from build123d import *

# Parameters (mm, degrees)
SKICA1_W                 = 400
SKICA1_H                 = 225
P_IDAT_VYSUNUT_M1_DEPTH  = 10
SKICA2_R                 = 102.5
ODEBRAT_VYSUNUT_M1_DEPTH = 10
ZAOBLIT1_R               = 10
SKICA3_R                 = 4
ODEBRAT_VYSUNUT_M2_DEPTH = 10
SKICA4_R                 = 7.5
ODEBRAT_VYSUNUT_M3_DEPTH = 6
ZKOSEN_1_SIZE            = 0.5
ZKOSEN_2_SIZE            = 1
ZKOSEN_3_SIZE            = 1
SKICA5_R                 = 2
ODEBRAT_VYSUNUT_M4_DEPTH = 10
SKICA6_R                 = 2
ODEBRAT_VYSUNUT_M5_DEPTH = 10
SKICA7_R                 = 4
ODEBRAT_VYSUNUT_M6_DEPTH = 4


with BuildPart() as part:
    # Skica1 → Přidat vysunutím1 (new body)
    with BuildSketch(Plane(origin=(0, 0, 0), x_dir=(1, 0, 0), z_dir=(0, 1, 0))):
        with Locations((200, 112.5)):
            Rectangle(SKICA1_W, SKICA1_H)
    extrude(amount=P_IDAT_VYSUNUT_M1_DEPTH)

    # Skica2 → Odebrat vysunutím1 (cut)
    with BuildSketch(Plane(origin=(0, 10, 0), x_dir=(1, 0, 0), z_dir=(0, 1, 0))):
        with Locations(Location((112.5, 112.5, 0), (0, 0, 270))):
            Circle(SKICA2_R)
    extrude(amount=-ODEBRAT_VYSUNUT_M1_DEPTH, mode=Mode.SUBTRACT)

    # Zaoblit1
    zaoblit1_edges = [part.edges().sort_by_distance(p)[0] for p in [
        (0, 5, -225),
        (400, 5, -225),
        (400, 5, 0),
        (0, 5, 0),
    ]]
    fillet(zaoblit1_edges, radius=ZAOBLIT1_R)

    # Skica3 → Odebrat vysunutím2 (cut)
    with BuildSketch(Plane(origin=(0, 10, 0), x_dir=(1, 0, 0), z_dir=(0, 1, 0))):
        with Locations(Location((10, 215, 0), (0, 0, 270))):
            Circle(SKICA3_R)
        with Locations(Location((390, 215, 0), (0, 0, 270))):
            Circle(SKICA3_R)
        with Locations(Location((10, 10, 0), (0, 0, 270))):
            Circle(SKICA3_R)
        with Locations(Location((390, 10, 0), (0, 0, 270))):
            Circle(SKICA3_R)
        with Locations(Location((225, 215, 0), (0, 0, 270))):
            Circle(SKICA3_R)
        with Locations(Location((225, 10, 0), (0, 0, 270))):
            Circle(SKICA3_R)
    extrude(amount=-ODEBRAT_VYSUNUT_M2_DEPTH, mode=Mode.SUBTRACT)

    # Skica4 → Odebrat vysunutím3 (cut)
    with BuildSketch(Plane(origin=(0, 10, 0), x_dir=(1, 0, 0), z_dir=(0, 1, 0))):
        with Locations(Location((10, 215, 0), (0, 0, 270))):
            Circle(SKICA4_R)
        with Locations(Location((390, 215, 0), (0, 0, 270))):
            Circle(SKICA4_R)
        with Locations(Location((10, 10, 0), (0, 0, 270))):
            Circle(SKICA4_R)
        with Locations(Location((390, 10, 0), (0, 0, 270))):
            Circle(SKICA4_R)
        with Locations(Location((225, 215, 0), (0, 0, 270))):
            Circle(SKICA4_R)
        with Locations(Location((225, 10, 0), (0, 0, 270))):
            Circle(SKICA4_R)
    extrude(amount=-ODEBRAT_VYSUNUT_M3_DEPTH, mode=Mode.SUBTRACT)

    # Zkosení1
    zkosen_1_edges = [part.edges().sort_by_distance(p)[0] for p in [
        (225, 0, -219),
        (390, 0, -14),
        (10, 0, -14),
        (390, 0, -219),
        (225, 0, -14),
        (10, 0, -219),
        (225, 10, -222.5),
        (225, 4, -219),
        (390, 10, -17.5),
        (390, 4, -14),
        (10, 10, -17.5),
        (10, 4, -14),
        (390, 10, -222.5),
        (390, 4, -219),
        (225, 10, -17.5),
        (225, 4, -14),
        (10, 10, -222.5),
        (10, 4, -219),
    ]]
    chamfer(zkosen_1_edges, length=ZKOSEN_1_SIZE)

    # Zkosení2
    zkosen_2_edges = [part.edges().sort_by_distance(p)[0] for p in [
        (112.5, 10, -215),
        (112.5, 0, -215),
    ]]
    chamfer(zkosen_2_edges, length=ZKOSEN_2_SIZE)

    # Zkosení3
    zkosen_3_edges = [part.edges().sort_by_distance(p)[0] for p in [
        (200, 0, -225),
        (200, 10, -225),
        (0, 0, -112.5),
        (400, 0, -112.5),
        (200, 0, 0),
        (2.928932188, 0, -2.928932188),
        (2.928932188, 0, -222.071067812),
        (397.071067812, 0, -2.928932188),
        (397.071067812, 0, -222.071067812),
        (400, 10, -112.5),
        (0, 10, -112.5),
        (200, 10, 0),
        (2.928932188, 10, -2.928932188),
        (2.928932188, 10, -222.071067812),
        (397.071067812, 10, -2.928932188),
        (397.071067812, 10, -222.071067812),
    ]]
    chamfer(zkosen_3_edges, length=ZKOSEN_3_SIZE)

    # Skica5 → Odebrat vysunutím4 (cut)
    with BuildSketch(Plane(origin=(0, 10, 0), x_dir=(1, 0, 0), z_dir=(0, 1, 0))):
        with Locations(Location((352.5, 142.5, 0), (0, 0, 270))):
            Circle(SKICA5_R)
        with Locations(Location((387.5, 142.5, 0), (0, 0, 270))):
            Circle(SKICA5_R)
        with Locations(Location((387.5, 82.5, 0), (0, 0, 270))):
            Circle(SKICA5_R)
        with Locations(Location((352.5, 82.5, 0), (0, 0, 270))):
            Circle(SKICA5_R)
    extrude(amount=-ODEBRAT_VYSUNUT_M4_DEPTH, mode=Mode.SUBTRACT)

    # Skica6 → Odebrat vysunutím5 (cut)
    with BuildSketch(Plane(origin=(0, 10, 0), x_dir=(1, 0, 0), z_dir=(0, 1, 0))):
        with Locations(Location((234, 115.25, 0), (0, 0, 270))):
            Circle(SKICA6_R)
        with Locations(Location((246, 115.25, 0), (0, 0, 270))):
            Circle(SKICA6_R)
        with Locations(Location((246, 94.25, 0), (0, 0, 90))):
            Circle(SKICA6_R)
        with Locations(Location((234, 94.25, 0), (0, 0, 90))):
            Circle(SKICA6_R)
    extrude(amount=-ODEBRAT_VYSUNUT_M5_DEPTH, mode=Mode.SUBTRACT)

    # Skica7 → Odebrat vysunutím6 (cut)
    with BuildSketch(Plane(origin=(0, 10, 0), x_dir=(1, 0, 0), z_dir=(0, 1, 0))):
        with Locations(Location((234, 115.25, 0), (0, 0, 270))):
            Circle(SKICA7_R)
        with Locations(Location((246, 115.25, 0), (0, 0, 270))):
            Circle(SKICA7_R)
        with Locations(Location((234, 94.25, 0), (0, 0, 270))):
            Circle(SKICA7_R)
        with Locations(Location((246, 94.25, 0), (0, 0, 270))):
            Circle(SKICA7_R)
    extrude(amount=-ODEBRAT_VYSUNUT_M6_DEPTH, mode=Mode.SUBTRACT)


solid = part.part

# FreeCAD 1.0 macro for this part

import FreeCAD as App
import Part
import Sketcher
from FreeCAD import Vector


def edges_at(feature, points):
    """Names of the edges that pass closest to the given points."""
    edges = feature.Shape.Edges
    near = lambda p: min(range(len(edges)), key=lambda i: edges[i].distToShape(Part.Vertex(*p))[0])
    return sorted({f"Edge{near(p) + 1}" for p in points})

doc = App.newDocument("Part")
body = doc.addObject("PartDesign::Body", "Body")

# Sketch on XZ plane
sketch1 = body.newObject("Sketcher::SketchObject", "Sketch")
sketch1.AttachmentSupport = (doc.getObject("XZ_Plane"), [""])
sketch1.MapMode = "FlatFace"
sketch1.addGeometry([
    Part.LineSegment(Vector(0, -225, 0), Vector(0, 0, 0)),
    Part.LineSegment(Vector(0, 0, 0), Vector(400, 0, 0)),
    Part.LineSegment(Vector(400, 0, 0), Vector(400, -225, 0)),
    Part.LineSegment(Vector(400, -225, 0), Vector(0, -225, 0)),
], False)
sketch1.addConstraint([
    Sketcher.Constraint("Coincident", 0, 2, 1, 1),
    Sketcher.Constraint("Coincident", 1, 2, 2, 1),
    Sketcher.Constraint("Coincident", 2, 2, 3, 1),
    Sketcher.Constraint("Coincident", 3, 2, 0, 1),
    Sketcher.Constraint("Vertical", 0),
    Sketcher.Constraint("Horizontal", 1),
    Sketcher.Constraint("Vertical", 2),
    Sketcher.Constraint("Horizontal", 3),
    Sketcher.Constraint("Coincident", 0, 2, -1, 1),
    Sketcher.Constraint("DistanceX", 1, 1, 1, 2, 400.0),
    Sketcher.Constraint("DistanceY", 0, 1, 0, 2, 225.0),
])
pad1 = body.newObject("PartDesign::Pad", "Pad")
pad1.Profile = sketch1
pad1.Length = 10
pad1.Reversed = True

# Sketch on XZ plane
sketch2 = body.newObject("Sketcher::SketchObject", "Sketch001")
sketch2.AttachmentSupport = (doc.getObject("XZ_Plane"), [""])
sketch2.MapMode = "FlatFace"
sketch2.AttachmentOffset = App.Placement(Vector(0, 0, -10), App.Rotation())
sketch2.addGeometry(Part.Circle(Vector(112.5, -112.5, 0), Vector(0, 0, 1), 102.5), False)
sketch2.addConstraint([
    Sketcher.Constraint("Diameter", 0, 205.0),
    Sketcher.Constraint("DistanceX", -1, 1, 0, 3, 112.5),
    Sketcher.Constraint("DistanceY", 0, 3, -1, 1, 112.5),
])
pocket1 = body.newObject("PartDesign::Pocket", "Pocket")
pocket1.Profile = sketch2
pocket1.Length = 10
pocket1.Reversed = True
doc.recompute()

fillet = body.newObject("PartDesign::Fillet", "Fillet")
fillet.Base = (pocket1, edges_at(pocket1, [
    (0, 5, -225),
    (400, 5, -225),
    (400, 5, 0),
    (0, 5, 0),
]))
fillet.Radius = 10

# Sketch on XZ plane
sketch3 = body.newObject("Sketcher::SketchObject", "Sketch002")
sketch3.AttachmentSupport = (doc.getObject("XZ_Plane"), [""])
sketch3.MapMode = "FlatFace"
sketch3.AttachmentOffset = App.Placement(Vector(0, 0, -10), App.Rotation())
sketch3.addGeometry([
    Part.Circle(Vector(10, -215, 0), Vector(0, 0, 1), 4),  # 0
    Part.Circle(Vector(390, -215, 0), Vector(0, 0, 1), 4),  # 1
    Part.Circle(Vector(10, -10, 0), Vector(0, 0, 1), 4),  # 2
    Part.Circle(Vector(390, -10, 0), Vector(0, 0, 1), 4),  # 3
    Part.Circle(Vector(225, -215, 0), Vector(0, 0, 1), 4),  # 4
    Part.Circle(Vector(225, -10, 0), Vector(0, 0, 1), 4),  # 5
], False)
sketch3.addConstraint([
    Sketcher.Constraint("Equal", 0, 1),
    Sketcher.Constraint("Equal", 1, 2),
    Sketcher.Constraint("Equal", 2, 3),
    Sketcher.Constraint("Equal", 3, 4),
    Sketcher.Constraint("Equal", 4, 5),
    Sketcher.Constraint("Horizontal", 0, 3, 1, 3),
    Sketcher.Constraint("Horizontal", 2, 3, 3, 3),
    Sketcher.Constraint("Horizontal", 1, 3, 4, 3),
    Sketcher.Constraint("Horizontal", 3, 3, 5, 3),
    Sketcher.Constraint("Vertical", 0, 3, 2, 3),
    Sketcher.Constraint("Vertical", 1, 3, 3, 3),
    Sketcher.Constraint("Vertical", 4, 3, 5, 3),
    Sketcher.Constraint("Diameter", 0, 8.0),
    Sketcher.Constraint("DistanceX", -1, 1, 0, 3, 10.0),
    Sketcher.Constraint("DistanceY", 0, 3, -1, 1, 215.0),
    Sketcher.Constraint("DistanceX", -1, 1, 1, 3, 390.0),
    Sketcher.Constraint("DistanceY", 2, 3, -1, 1, 10.0),
    Sketcher.Constraint("DistanceX", -1, 1, 4, 3, 225.0),
])
pocket2 = body.newObject("PartDesign::Pocket", "Pocket001")
pocket2.Profile = sketch3
pocket2.Length = 10
pocket2.Reversed = True

# Sketch on XZ plane
sketch4 = body.newObject("Sketcher::SketchObject", "Sketch003")
sketch4.AttachmentSupport = (doc.getObject("XZ_Plane"), [""])
sketch4.MapMode = "FlatFace"
sketch4.AttachmentOffset = App.Placement(Vector(0, 0, -10), App.Rotation())
sketch4.addGeometry([
    Part.Circle(Vector(10, -215, 0), Vector(0, 0, 1), 7.5),  # 0
    Part.Circle(Vector(390, -215, 0), Vector(0, 0, 1), 7.5),  # 1
    Part.Circle(Vector(10, -10, 0), Vector(0, 0, 1), 7.5),  # 2
    Part.Circle(Vector(390, -10, 0), Vector(0, 0, 1), 7.5),  # 3
    Part.Circle(Vector(225, -215, 0), Vector(0, 0, 1), 7.5),  # 4
    Part.Circle(Vector(225, -10, 0), Vector(0, 0, 1), 7.5),  # 5
], False)
sketch4.addConstraint([
    Sketcher.Constraint("Equal", 0, 1),
    Sketcher.Constraint("Equal", 1, 2),
    Sketcher.Constraint("Equal", 2, 3),
    Sketcher.Constraint("Equal", 3, 4),
    Sketcher.Constraint("Equal", 4, 5),
    Sketcher.Constraint("Horizontal", 0, 3, 1, 3),
    Sketcher.Constraint("Horizontal", 2, 3, 3, 3),
    Sketcher.Constraint("Horizontal", 1, 3, 4, 3),
    Sketcher.Constraint("Horizontal", 3, 3, 5, 3),
    Sketcher.Constraint("Vertical", 0, 3, 2, 3),
    Sketcher.Constraint("Vertical", 1, 3, 3, 3),
    Sketcher.Constraint("Vertical", 4, 3, 5, 3),
    Sketcher.Constraint("Diameter", 0, 15.0),
    Sketcher.Constraint("DistanceX", -1, 1, 0, 3, 10.0),
    Sketcher.Constraint("DistanceY", 0, 3, -1, 1, 215.0),
    Sketcher.Constraint("DistanceX", -1, 1, 1, 3, 390.0),
    Sketcher.Constraint("DistanceY", 2, 3, -1, 1, 10.0),
    Sketcher.Constraint("DistanceX", -1, 1, 4, 3, 225.0),
])
pocket3 = body.newObject("PartDesign::Pocket", "Pocket002")
pocket3.Profile = sketch4
pocket3.Length = 6
pocket3.Reversed = True
doc.recompute()

chamfer = body.newObject("PartDesign::Chamfer", "Chamfer")
chamfer.Base = (pocket3, edges_at(pocket3, [
    (225, 0, -219),
    (390, 0, -14),
    (10, 0, -14),
    (390, 0, -219),
    (225, 0, -14),
    (10, 0, -219),
    (225, 10, -222.5),
    (225, 4, -219),
    (390, 10, -17.5),
    (390, 4, -14),
    (10, 10, -17.5),
    (10, 4, -14),
    (390, 10, -222.5),
    (390, 4, -219),
    (225, 10, -17.5),
    (225, 4, -14),
    (10, 10, -222.5),
    (10, 4, -219),
]))
chamfer.Size = 0.5
doc.recompute()

chamfer2 = body.newObject("PartDesign::Chamfer", "Chamfer001")
chamfer2.Base = (chamfer, edges_at(chamfer, [(112.5, 10, -215), (112.5, 0, -215)]))
chamfer2.Size = 1
doc.recompute()

chamfer3 = body.newObject("PartDesign::Chamfer", "Chamfer002")
chamfer3.Base = (chamfer2, edges_at(chamfer2, [
    (200, 0, -225),
    (200, 10, -225),
    (0, 0, -112.5),
    (400, 0, -112.5),
    (200, 0, 0),
    (2.929, 0, -2.929),
    (2.929, 0, -222.071),
    (397.071, 0, -2.929),
    (397.071, 0, -222.071),
    (400, 10, -112.5),
    (0, 10, -112.5),
    (200, 10, 0),
    (2.929, 10, -2.929),
    (2.929, 10, -222.071),
    (397.071, 10, -2.929),
    (397.071, 10, -222.071),
]))
chamfer3.Size = 1

# Sketch on XZ plane
sketch5 = body.newObject("Sketcher::SketchObject", "Sketch004")
sketch5.AttachmentSupport = (doc.getObject("XZ_Plane"), [""])
sketch5.MapMode = "FlatFace"
sketch5.AttachmentOffset = App.Placement(Vector(0, 0, -10), App.Rotation())
sketch5.addGeometry([
    Part.Circle(Vector(352.5, -142.5, 0), Vector(0, 0, 1), 2),
    Part.Circle(Vector(387.5, -142.5, 0), Vector(0, 0, 1), 2),
    Part.Circle(Vector(387.5, -82.5, 0), Vector(0, 0, 1), 2),
    Part.Circle(Vector(352.5, -82.5, 0), Vector(0, 0, 1), 2),
], False)
sketch5.addConstraint([
    Sketcher.Constraint("Equal", 0, 1),
    Sketcher.Constraint("Equal", 1, 2),
    Sketcher.Constraint("Equal", 2, 3),
    Sketcher.Constraint("Horizontal", 0, 3, 1, 3),
    Sketcher.Constraint("Horizontal", 2, 3, 3, 3),
    Sketcher.Constraint("Vertical", 1, 3, 2, 3),
    Sketcher.Constraint("Vertical", 0, 3, 3, 3),
    Sketcher.Constraint("Diameter", 0, 4.0),
    Sketcher.Constraint("DistanceX", 0, 3, 1, 3, 35.0),
    Sketcher.Constraint("DistanceY", 1, 3, 2, 3, 60.0),
    Sketcher.Constraint("DistanceX", -1, 1, 0, 3, 352.5),
    Sketcher.Constraint("DistanceY", 0, 3, -1, 1, 142.5),
])
pocket4 = body.newObject("PartDesign::Pocket", "Pocket003")
pocket4.Profile = sketch5
pocket4.Length = 10
pocket4.Reversed = True

# Sketch on XZ plane
sketch6 = body.newObject("Sketcher::SketchObject", "Sketch005")
sketch6.AttachmentSupport = (doc.getObject("XZ_Plane"), [""])
sketch6.MapMode = "FlatFace"
sketch6.AttachmentOffset = App.Placement(Vector(0, 0, -10), App.Rotation())
sketch6.addGeometry([
    Part.Circle(Vector(234, -115.25, 0), Vector(0, 0, 1), 2),
    Part.Circle(Vector(246, -115.25, 0), Vector(0, 0, 1), 2),
    Part.Circle(Vector(246, -94.25, 0), Vector(0, 0, 1), 2),
    Part.Circle(Vector(234, -94.25, 0), Vector(0, 0, 1), 2),
], False)
sketch6.addConstraint([
    Sketcher.Constraint("Equal", 0, 1),
    Sketcher.Constraint("Equal", 1, 2),
    Sketcher.Constraint("Equal", 2, 3),
    Sketcher.Constraint("Horizontal", 0, 3, 1, 3),
    Sketcher.Constraint("Horizontal", 2, 3, 3, 3),
    Sketcher.Constraint("Vertical", 1, 3, 2, 3),
    Sketcher.Constraint("Vertical", 0, 3, 3, 3),
    Sketcher.Constraint("Diameter", 0, 4.0),
    Sketcher.Constraint("DistanceX", -1, 1, 0, 3, 234.0),
    Sketcher.Constraint("DistanceX", -1, 1, 1, 3, 246.0),
    Sketcher.Constraint("DistanceY", 1, 3, 2, 3, 21.0),
    Sketcher.Constraint("DistanceY", 0, 3, -1, 1, 115.25),
])
pocket5 = body.newObject("PartDesign::Pocket", "Pocket004")
pocket5.Profile = sketch6
pocket5.Length = 10
pocket5.Reversed = True

# Sketch on XZ plane
sketch7 = body.newObject("Sketcher::SketchObject", "Sketch006")
sketch7.AttachmentSupport = (doc.getObject("XZ_Plane"), [""])
sketch7.MapMode = "FlatFace"
sketch7.AttachmentOffset = App.Placement(Vector(0, 0, -10), App.Rotation())
sketch7.addGeometry([
    Part.Circle(Vector(234, -115.25, 0), Vector(0, 0, 1), 4),
    Part.Circle(Vector(246, -115.25, 0), Vector(0, 0, 1), 4),
    Part.Circle(Vector(234, -94.25, 0), Vector(0, 0, 1), 4),
    Part.Circle(Vector(246, -94.25, 0), Vector(0, 0, 1), 4),
], False)
sketch7.addConstraint([
    Sketcher.Constraint("Equal", 0, 1),
    Sketcher.Constraint("Equal", 1, 2),
    Sketcher.Constraint("Equal", 2, 3),
    Sketcher.Constraint("Horizontal", 0, 3, 1, 3),
    Sketcher.Constraint("Horizontal", 2, 3, 3, 3),
    Sketcher.Constraint("Vertical", 0, 3, 2, 3),
    Sketcher.Constraint("Vertical", 1, 3, 3, 3),
    Sketcher.Constraint("Diameter", 0, 8.0),
    Sketcher.Constraint("DistanceX", -1, 1, 0, 3, 234.0),
    Sketcher.Constraint("DistanceX", -1, 1, 1, 3, 246.0),
    Sketcher.Constraint("DistanceY", 0, 3, 2, 3, 21.0),
    Sketcher.Constraint("DistanceY", 0, 3, -1, 1, 115.25),
])
pocket6 = body.newObject("PartDesign::Pocket", "Pocket005")
pocket6.Profile = sketch7
pocket6.Length = 4
pocket6.Reversed = True

doc.recompute()
